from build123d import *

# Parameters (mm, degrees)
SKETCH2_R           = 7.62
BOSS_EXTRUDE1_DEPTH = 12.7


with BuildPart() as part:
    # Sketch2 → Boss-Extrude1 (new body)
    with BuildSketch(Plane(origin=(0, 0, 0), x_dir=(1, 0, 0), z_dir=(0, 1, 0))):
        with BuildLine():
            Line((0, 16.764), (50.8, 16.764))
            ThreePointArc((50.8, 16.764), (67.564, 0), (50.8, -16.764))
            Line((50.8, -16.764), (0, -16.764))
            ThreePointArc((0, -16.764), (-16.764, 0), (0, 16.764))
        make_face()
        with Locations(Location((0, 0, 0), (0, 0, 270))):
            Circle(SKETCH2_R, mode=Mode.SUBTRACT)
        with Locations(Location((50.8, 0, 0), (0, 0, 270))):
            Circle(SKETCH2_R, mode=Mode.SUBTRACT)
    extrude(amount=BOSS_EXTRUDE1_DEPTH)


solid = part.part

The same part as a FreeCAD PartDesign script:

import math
import FreeCAD as App
import Part
import Sketcher
Q = App.Units.Quantity

doc = App.newDocument("Part")
body = doc.addObject("PartDesign::Body", "Body")

sketch1 = doc.addObject("Sketcher::SketchObject", "Sketch")
body.addObject(sketch1)
sketch1.AttachmentSupport = (doc.XZ_Plane, [""])
sketch1.MapMode = "FlatFace"
sketch1.addGeometry(Part.LineSegment(App.Vector(51, -17, 0), App.Vector(0, -17, 0)), False)
sketch1.addGeometry(Part.ArcOfCircle(Part.Circle(App.Vector(0, 0, 0), App.Vector(0, 0, 1), 17), math.radians(90), math.radians(270)), False)
sketch1.addGeometry(Part.LineSegment(App.Vector(0, 17, 0), App.Vector(51, 17, 0)), False)
sketch1.addGeometry(Part.ArcOfCircle(Part.Circle(App.Vector(51, 0, 0), App.Vector(0, 0, 1), 17), math.radians(-90), math.radians(90)), False)
sketch1.addGeometry(Part.Circle(App.Vector(51, 0, 0), App.Vector(0, 0, 1), 8), False)
sketch1.addGeometry(Part.Circle(App.Vector(0, 0, 0), App.Vector(0, 0, 1), 8), False)
sketch1.addConstraint(Sketcher.Constraint("Tangent", 0, 2, 1, 2))
sketch1.addConstraint(Sketcher.Constraint("Tangent", 1, 1, 2, 1))
sketch1.addConstraint(Sketcher.Constraint("Tangent", 2, 2, 3, 2))
sketch1.addConstraint(Sketcher.Constraint("Tangent", 3, 1, 0, 1))
sketch1.addConstraint(Sketcher.Constraint("Horizontal", 0))
sketch1.addConstraint(Sketcher.Constraint("Horizontal", 2))
sketch1.addConstraint(Sketcher.Constraint("Coincident", 1, 3, -1, 1))
sketch1.addConstraint(Sketcher.Constraint("Coincident", 5, 3, -1, 1))
sketch1.addConstraint(Sketcher.Constraint("Coincident", 4, 3, 3, 3))
sketch1.addConstraint(Sketcher.Constraint("Equal", 4, 5))
sketch1.addConstraint(Sketcher.Constraint("Diameter", 4, Q("0.6 in")))
sketch1.addConstraint(Sketcher.Constraint("DistanceX", 0, 2, 0, 1, Q("2 in")))
sketch1.addConstraint(Sketcher.Constraint("Radius", 1, Q("0.66 in")))
pad1 = doc.addObject("PartDesign::Pad", "Pad")
body.addObject(pad1)
pad1.Profile = sketch1
pad1.Length = Q("0.5 in")
pad1.Reversed = True

doc.recompute()
